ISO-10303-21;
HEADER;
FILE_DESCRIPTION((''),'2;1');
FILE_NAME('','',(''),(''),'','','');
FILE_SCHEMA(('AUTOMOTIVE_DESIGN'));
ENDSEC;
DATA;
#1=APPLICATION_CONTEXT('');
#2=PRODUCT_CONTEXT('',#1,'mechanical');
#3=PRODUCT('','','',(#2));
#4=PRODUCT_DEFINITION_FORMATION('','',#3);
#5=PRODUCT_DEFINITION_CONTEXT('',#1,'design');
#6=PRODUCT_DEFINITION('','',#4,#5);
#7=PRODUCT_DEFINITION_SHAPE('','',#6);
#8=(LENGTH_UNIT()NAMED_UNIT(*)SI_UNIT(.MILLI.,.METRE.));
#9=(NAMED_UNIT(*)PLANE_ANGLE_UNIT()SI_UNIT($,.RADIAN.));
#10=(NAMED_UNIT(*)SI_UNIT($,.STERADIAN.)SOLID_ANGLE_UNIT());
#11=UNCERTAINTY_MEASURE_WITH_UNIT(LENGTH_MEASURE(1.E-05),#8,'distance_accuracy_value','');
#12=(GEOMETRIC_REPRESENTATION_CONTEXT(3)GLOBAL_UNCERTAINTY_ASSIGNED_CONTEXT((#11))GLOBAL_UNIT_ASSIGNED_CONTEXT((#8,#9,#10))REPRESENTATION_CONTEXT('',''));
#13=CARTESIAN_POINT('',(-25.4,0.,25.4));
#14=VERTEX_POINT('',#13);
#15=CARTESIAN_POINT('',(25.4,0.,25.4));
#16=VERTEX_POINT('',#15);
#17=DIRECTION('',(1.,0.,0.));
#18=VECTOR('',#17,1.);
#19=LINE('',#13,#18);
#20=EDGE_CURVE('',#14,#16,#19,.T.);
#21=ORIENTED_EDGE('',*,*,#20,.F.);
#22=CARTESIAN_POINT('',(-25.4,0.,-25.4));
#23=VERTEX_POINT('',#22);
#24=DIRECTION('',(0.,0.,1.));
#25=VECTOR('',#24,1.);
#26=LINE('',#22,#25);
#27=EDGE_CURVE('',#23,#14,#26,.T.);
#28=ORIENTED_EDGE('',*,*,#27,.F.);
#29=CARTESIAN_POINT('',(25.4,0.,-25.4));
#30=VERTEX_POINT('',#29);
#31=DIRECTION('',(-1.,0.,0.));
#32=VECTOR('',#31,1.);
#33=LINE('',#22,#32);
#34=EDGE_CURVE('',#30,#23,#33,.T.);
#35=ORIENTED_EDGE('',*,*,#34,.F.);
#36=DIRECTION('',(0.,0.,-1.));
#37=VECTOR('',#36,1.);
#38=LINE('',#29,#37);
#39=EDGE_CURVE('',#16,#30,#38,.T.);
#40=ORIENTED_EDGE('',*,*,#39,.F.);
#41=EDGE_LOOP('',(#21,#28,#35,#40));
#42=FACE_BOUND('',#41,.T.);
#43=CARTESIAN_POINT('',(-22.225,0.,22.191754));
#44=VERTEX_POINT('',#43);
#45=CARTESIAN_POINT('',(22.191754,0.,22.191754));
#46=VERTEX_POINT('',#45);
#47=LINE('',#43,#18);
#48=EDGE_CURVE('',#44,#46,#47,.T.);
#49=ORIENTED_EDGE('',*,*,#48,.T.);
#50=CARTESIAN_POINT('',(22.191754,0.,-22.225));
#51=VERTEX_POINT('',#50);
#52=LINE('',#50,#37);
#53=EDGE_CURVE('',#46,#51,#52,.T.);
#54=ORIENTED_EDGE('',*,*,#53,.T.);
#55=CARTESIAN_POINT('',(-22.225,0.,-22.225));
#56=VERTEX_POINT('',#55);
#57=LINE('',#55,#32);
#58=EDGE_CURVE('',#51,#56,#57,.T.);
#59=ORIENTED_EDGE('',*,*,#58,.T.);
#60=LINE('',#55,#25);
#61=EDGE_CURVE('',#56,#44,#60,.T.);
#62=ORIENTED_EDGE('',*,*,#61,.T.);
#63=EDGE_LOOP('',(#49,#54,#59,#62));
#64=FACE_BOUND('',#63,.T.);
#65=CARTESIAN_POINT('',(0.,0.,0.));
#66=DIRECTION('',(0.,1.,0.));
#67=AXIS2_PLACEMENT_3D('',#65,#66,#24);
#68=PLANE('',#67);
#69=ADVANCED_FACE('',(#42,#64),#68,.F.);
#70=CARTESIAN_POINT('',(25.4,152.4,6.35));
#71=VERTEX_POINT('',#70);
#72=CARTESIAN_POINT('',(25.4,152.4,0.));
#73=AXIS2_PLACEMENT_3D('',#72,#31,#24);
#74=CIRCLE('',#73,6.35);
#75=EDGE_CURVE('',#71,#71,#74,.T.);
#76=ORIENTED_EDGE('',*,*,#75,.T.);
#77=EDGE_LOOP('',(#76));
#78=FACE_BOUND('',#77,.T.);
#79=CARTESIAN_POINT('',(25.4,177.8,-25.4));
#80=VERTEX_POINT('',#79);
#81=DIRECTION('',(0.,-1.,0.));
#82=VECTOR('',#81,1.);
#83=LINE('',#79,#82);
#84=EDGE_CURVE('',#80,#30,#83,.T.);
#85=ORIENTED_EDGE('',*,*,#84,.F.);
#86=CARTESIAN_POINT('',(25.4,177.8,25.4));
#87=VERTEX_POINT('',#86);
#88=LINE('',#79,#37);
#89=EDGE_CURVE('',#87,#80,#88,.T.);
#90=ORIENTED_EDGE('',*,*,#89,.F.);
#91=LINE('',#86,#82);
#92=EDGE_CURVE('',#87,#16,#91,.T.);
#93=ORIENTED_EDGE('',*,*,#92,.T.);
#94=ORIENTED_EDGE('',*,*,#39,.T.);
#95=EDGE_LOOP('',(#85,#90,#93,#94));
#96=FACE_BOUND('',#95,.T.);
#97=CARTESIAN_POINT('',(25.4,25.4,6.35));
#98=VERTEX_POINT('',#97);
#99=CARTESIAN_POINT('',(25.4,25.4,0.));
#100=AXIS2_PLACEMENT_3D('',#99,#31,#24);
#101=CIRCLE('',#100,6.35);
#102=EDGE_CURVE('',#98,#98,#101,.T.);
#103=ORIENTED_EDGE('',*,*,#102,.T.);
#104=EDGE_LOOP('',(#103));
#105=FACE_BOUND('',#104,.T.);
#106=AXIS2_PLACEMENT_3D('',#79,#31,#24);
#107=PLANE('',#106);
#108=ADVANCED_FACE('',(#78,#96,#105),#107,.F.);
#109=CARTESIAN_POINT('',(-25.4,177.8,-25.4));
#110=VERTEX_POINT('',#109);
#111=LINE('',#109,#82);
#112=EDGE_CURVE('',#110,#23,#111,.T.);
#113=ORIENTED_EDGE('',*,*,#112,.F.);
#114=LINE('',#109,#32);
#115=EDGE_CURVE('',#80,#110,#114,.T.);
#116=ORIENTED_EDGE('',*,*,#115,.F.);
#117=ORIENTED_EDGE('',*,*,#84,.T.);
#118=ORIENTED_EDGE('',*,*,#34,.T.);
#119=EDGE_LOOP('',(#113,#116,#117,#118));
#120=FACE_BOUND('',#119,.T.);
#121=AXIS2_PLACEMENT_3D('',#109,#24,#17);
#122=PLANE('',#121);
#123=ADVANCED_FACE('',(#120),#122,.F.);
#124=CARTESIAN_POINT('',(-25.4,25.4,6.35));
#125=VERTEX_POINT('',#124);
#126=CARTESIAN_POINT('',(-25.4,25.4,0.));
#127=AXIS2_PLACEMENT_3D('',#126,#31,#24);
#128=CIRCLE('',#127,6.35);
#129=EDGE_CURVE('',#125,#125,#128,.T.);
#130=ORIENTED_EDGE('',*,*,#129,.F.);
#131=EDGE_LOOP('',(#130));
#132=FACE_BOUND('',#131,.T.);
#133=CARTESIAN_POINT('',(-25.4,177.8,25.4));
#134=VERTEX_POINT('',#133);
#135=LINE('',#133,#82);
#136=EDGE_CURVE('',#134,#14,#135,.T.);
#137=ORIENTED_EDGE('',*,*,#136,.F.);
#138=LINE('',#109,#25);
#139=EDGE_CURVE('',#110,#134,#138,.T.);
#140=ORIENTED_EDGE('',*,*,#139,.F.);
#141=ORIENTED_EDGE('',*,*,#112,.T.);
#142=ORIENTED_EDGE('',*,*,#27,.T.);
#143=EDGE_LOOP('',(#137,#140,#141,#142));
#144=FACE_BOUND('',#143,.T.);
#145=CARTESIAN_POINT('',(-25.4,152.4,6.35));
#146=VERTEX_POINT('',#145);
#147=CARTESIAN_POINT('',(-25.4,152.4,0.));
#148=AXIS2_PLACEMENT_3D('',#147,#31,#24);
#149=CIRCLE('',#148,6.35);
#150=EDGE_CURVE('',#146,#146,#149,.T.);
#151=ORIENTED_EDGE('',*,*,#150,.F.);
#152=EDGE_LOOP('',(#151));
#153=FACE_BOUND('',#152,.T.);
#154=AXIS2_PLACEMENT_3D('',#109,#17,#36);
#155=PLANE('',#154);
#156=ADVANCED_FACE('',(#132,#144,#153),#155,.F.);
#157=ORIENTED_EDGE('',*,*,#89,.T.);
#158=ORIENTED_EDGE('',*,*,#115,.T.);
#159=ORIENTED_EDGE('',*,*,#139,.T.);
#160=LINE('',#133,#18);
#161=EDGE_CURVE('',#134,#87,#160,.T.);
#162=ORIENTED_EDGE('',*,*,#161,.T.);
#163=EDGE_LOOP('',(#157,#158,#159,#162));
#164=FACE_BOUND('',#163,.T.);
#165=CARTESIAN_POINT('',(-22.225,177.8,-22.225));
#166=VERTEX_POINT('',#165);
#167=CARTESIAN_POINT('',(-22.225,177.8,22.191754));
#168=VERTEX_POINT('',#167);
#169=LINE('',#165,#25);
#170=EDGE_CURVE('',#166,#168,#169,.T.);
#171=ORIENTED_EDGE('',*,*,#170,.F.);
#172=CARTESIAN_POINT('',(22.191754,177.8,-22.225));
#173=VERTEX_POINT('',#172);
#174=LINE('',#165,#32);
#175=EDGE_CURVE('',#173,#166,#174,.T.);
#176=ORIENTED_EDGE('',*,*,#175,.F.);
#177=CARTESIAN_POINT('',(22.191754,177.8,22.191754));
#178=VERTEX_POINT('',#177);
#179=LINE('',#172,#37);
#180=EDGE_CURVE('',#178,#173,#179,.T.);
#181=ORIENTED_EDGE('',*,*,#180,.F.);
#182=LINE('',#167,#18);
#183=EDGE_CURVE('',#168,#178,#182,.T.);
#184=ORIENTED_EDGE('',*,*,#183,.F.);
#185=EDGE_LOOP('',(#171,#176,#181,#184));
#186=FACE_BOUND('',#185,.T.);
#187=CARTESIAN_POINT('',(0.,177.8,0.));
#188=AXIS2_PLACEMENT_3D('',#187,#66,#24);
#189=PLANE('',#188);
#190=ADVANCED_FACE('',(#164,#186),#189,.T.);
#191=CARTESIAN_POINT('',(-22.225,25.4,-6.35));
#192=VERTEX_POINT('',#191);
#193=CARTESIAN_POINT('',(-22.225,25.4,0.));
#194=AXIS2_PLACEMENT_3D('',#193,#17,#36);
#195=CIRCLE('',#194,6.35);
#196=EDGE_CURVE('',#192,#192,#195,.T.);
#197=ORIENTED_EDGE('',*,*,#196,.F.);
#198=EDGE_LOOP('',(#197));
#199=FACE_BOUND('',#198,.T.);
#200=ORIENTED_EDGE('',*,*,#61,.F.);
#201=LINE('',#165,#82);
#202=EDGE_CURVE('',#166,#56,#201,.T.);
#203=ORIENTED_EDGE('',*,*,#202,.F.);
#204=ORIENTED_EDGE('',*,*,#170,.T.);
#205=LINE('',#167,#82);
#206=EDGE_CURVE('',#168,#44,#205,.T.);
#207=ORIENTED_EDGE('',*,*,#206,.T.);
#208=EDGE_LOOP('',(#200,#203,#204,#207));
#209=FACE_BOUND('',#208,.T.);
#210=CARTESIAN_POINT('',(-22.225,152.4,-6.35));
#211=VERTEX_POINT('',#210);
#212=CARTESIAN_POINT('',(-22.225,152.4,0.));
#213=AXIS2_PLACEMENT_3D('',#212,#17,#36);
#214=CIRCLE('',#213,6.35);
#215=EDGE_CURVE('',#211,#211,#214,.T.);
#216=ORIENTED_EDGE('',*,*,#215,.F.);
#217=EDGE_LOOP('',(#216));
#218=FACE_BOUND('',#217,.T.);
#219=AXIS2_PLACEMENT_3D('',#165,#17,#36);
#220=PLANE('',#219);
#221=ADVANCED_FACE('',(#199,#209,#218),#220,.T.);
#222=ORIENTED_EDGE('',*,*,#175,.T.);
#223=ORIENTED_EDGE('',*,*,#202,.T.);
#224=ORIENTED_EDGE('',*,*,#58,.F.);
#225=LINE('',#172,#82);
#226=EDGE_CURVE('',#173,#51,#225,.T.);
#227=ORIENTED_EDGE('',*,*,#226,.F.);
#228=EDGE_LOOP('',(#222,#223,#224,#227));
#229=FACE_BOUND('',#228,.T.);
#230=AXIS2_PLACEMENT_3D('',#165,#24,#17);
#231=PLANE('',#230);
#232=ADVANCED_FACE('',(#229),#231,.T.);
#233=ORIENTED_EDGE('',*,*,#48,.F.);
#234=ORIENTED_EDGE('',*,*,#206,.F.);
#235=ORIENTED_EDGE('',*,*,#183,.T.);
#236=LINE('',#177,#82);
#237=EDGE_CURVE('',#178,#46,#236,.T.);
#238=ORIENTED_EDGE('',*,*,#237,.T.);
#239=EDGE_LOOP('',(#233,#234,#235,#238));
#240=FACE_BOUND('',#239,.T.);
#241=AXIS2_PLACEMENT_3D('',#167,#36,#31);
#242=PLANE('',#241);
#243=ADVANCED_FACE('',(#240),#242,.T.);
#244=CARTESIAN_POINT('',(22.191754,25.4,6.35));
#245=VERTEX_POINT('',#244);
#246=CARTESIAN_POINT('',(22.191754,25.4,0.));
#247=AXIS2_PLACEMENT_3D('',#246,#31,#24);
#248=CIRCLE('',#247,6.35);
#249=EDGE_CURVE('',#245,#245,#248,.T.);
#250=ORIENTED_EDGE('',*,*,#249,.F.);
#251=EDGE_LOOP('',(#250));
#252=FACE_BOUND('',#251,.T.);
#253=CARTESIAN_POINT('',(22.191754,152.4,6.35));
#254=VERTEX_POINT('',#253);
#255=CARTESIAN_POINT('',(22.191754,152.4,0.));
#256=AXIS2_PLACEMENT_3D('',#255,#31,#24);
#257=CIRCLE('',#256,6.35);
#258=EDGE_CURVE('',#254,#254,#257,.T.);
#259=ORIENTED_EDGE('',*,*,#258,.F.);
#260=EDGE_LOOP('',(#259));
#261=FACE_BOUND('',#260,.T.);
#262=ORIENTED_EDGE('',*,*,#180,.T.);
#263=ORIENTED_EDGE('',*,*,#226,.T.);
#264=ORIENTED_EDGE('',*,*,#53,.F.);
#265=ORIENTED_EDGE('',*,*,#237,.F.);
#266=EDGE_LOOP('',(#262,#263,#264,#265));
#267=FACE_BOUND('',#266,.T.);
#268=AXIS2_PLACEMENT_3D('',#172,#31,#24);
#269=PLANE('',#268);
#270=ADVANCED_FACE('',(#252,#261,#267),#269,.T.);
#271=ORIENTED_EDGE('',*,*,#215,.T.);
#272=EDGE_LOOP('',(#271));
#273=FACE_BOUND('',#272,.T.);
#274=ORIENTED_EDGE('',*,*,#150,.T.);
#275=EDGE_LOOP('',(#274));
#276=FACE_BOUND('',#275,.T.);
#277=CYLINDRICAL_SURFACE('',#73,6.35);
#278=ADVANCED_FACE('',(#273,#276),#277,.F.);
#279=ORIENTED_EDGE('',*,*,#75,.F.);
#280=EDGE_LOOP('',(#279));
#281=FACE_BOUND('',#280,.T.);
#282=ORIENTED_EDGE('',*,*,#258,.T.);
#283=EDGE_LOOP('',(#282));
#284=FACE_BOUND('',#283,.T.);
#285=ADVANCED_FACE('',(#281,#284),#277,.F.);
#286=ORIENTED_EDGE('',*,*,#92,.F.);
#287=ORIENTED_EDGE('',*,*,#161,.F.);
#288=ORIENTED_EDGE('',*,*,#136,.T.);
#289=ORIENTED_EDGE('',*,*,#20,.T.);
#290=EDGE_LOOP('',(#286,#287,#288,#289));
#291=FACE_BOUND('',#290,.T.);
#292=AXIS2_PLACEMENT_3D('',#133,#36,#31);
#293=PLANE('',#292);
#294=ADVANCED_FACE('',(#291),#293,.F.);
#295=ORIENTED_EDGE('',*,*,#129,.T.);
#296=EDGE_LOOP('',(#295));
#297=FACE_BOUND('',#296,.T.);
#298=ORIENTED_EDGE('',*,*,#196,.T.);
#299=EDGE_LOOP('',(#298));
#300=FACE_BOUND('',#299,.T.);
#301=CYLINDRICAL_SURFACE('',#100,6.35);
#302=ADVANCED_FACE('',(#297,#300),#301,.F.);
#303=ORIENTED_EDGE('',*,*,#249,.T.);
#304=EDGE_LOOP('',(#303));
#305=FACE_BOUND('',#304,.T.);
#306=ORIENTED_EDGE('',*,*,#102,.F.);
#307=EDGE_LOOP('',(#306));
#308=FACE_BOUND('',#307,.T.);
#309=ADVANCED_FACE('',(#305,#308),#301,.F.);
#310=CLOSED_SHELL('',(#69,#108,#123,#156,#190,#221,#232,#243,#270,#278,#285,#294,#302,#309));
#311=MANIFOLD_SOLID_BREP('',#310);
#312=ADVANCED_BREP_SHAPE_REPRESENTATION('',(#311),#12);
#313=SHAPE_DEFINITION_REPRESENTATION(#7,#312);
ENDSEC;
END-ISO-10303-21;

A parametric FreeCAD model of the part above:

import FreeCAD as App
import Part
import Sketcher
Q = App.Units.Quantity


def add_polygon(sketch, points):
    """Adds a closed chain of lines whose ends are joined by coincident constraints."""
    first, n = sketch.GeometryCount, len(points)
    for a, b in zip(points, points[1:] + points[:1]):
        sketch.addGeometry(Part.LineSegment(App.Vector(*a, 0), App.Vector(*b, 0)), False)
    for i in range(n):
        sketch.addConstraint(Sketcher.Constraint("Coincident", first + i, 2, first + (i + 1) % n, 1))

doc = App.newDocument("Part")
body = doc.addObject("PartDesign::Body", "Body")

sketch1 = doc.addObject("Sketcher::SketchObject", "Sketch")
body.addObject(sketch1)
sketch1.AttachmentSupport = (doc.XZ_Plane, [""])
sketch1.MapMode = "FlatFace"
add_polygon(sketch1, [(-25.4, -25.4), (-25.4, 25.4), (25.4, 25.4), (25.4, -25.4)])
add_polygon(sketch1, [(22.191754, 22.191754), (-22.225, 22.191754), (-22.225, -22.225), (22.191754, -22.225)])
sketch1.addConstraint(Sketcher.Constraint("Vertical", 0))
sketch1.addConstraint(Sketcher.Constraint("Horizontal", 1))
sketch1.addConstraint(Sketcher.Constraint("Vertical", 2))
sketch1.addConstraint(Sketcher.Constraint("Horizontal", 3))
sketch1.addConstraint(Sketcher.Constraint("Horizontal", 4))
sketch1.addConstraint(Sketcher.Constraint("Vertical", 5))
sketch1.addConstraint(Sketcher.Constraint("Horizontal", 6))
sketch1.addConstraint(Sketcher.Constraint("Vertical", 7))
sketch1.addConstraint(Sketcher.Constraint("Symmetric", 0, 2, 2, 2, -1, 1))
sketch1.addConstraint(Sketcher.Constraint("Equal", 3, 0))
sketch1.addConstraint(Sketcher.Constraint("Equal", 6, 5))
sketch1.addConstraint(Sketcher.Constraint("DistanceX", 1, 1, 1, 2, Q("2 in")))
sketch1.addConstraint(Sketcher.Constraint("DistanceX", 4, 2, -1, 1, Q("0.875 in")))
sketch1.addConstraint(Sketcher.Constraint("DistanceY", 5, 2, -1, 1, Q("0.875 in")))
sketch1.addConstraint(Sketcher.Constraint("DistanceX", 4, 2, 4, 1, Q("44.416754 mm")))
pad1 = doc.addObject("PartDesign::Pad", "Pad")
body.addObject(pad1)
pad1.Profile = sketch1
pad1.Length = Q("7 in")
pad1.Reversed = True

sketch2 = doc.addObject("Sketcher::SketchObject", "Sketch001")
body.addObject(sketch2)
sketch2.AttachmentSupport = (doc.YZ_Plane, [""])
sketch2.MapMode = "FlatFace"
sketch2.AttachmentOffset = App.Placement(App.Vector(0, 0, -1 * 25.4), App.Rotation())
sketch2.addGeometry(Part.Circle(App.Vector(25.4, 0, 0), App.Vector(0, 0, 1), 6.35), False)
sketch2.addGeometry(Part.Circle(App.Vector(152.4, 0, 0), App.Vector(0, 0, 1), 6.35), False)
sketch2.addConstraint(Sketcher.Constraint("Equal", 0, 1))
sketch2.addConstraint(Sketcher.Constraint("PointOnObject", 0, 3, -1))
sketch2.addConstraint(Sketcher.Constraint("PointOnObject", 1, 3, -1))
sketch2.addConstraint(Sketcher.Constraint("Diameter", 0, Q("0.5 in")))
sketch2.addConstraint(Sketcher.Constraint("DistanceX", -1, 1, 0, 3, Q("1 in")))
sketch2.addConstraint(Sketcher.Constraint("DistanceX", -1, 1, 1, 3, Q("6 in")))
pocket1 = doc.addObject("PartDesign::Pocket", "Pocket")
body.addObject(pocket1)
pocket1.Profile = sketch2
pocket1.Type = "ThroughAll"
pocket1.Reversed = True

doc.recompute()
